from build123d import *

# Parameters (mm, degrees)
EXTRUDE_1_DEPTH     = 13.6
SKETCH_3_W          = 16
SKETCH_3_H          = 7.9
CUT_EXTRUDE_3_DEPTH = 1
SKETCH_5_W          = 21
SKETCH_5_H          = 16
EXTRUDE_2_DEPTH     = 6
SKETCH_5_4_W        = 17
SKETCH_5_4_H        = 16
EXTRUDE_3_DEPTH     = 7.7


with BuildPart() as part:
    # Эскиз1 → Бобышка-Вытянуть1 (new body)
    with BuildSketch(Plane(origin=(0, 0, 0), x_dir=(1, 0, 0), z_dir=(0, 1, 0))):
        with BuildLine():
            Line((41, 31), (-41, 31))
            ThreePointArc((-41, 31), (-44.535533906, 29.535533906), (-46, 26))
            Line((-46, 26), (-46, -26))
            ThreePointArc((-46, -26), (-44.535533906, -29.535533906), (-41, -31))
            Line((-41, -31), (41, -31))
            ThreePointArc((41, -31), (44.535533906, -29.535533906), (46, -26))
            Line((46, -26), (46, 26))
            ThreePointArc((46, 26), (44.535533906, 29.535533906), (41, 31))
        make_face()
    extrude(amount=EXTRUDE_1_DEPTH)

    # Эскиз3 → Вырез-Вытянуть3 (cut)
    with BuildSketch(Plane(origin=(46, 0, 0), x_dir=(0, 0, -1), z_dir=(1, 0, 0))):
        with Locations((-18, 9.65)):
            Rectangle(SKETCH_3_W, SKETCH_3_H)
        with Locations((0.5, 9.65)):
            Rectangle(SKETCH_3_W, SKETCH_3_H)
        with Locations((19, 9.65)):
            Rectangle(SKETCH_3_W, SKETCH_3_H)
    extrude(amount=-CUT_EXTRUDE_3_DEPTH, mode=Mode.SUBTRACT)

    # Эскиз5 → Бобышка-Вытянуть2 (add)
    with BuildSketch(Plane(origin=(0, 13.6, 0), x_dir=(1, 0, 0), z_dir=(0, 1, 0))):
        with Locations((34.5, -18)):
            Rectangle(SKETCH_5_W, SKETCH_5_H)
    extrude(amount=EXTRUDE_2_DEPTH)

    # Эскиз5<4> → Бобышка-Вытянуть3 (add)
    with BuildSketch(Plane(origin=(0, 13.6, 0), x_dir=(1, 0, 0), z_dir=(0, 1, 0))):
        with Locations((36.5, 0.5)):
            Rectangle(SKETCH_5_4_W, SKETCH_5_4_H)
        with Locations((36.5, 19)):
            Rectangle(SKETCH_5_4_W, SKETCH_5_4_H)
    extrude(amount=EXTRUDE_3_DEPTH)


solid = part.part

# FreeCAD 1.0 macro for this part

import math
import FreeCAD as App
import Part
import Sketcher

V = App.Vector


def add_polygon(sketch, points):
    """Adds a closed chain of lines whose ends are joined by coincident constraints."""
    first, n = sketch.GeometryCount, len(points)
    for a, b in zip(points, points[1:] + points[:1]):
        sketch.addGeometry(Part.LineSegment(App.Vector(*a, 0), App.Vector(*b, 0)), False)
    for i in range(n):
        sketch.addConstraint(Sketcher.Constraint("Coincident", first + i, 2, first + (i + 1) % n, 1))

doc = App.newDocument("Part")
body = doc.addObject("PartDesign::Body", "Body")

sketch1 = doc.addObject("Sketcher::SketchObject", "Sketch")
body.addObject(sketch1)
sketch1.AttachmentSupport = (doc.XZ_Plane, [""])
sketch1.MapMode = "FlatFace"
sketch1.addGeometry(Part.LineSegment(V(41, -31, 0), V(-41, -31, 0)), False)
sketch1.addGeometry(Part.ArcOfCircle(Part.Circle(V(-41, -26, 0), V(0, 0, 1), 5), math.radians(180), math.radians(270)), False)
sketch1.addGeometry(Part.LineSegment(V(-46, -26, 0), V(-46, 26, 0)), False)
sketch1.addGeometry(Part.ArcOfCircle(Part.Circle(V(-41, 26, 0), V(0, 0, 1), 5), math.radians(90), math.radians(180)), False)
sketch1.addGeometry(Part.LineSegment(V(-41, 31, 0), V(41, 31, 0)), False)
sketch1.addGeometry(Part.ArcOfCircle(Part.Circle(V(41, 26, 0), V(0, 0, 1), 5), math.radians(0), math.radians(90)), False)
sketch1.addGeometry(Part.LineSegment(V(46, 26, 0), V(46, -26, 0)), False)
sketch1.addGeometry(Part.ArcOfCircle(Part.Circle(V(41, -26, 0), V(0, 0, 1), 5), math.radians(-90), math.radians(0)), False)
sketch1.addConstraint(Sketcher.Constraint("Tangent", 0, 2, 1, 2))
sketch1.addConstraint(Sketcher.Constraint("Tangent", 1, 1, 2, 1))
sketch1.addConstraint(Sketcher.Constraint("Tangent", 2, 2, 3, 2))
sketch1.addConstraint(Sketcher.Constraint("Tangent", 3, 1, 4, 1))
sketch1.addConstraint(Sketcher.Constraint("Tangent", 4, 2, 5, 2))
sketch1.addConstraint(Sketcher.Constraint("Tangent", 5, 1, 6, 1))
sketch1.addConstraint(Sketcher.Constraint("Tangent", 6, 2, 7, 2))
sketch1.addConstraint(Sketcher.Constraint("Tangent", 7, 1, 0, 1))
sketch1.addConstraint(Sketcher.Constraint("Horizontal", 0))
sketch1.addConstraint(Sketcher.Constraint("Vertical", 2))
sketch1.addConstraint(Sketcher.Constraint("Horizontal", 4))
sketch1.addConstraint(Sketcher.Constraint("Vertical", 6))
sketch1.addConstraint(Sketcher.Constraint("Equal", 1, 3))
sketch1.addConstraint(Sketcher.Constraint("Equal", 3, 5))
sketch1.addConstraint(Sketcher.Constraint("Equal", 5, 7))
sketch1.addConstraint(Sketcher.Constraint("Symmetric", 1, 3, 5, 3, -1, 1))
sketch1.addConstraint(Sketcher.Constraint("Radius", 1, 5.0))
sketch1.addConstraint(Sketcher.Constraint("DistanceX", 0, 2, 0, 1, 82.0))
sketch1.addConstraint(Sketcher.Constraint("DistanceY", 2, 1, 2, 2, 52.0))
pad1 = doc.addObject("PartDesign::Pad", "Pad")
body.addObject(pad1)
pad1.Profile = sketch1
pad1.Length = 13.6
pad1.Reversed = True

sketch2 = doc.addObject("Sketcher::SketchObject", "Sketch001")
body.addObject(sketch2)
sketch2.AttachmentSupport = (doc.YZ_Plane, [""])
sketch2.MapMode = "FlatFace"
sketch2.AttachmentOffset = App.Placement(V(0, 0, 46), App.Rotation())
add_polygon(sketch2, [(14, 26), (6, 26), (6, 10), (14, 10)])
add_polygon(sketch2, [(14, 8), (6, 8), (6, -8), (14, -8)])
add_polygon(sketch2, [(14, -11), (6, -11), (6, -27), (14, -27)])
sketch2.addConstraint(Sketcher.Constraint("Horizontal", 0))
sketch2.addConstraint(Sketcher.Constraint("Vertical", 1))
sketch2.addConstraint(Sketcher.Constraint("Horizontal", 2))
sketch2.addConstraint(Sketcher.Constraint("Vertical", 3))
sketch2.addConstraint(Sketcher.Constraint("Horizontal", 4))
sketch2.addConstraint(Sketcher.Constraint("Vertical", 5))
sketch2.addConstraint(Sketcher.Constraint("Horizontal", 6))
sketch2.addConstraint(Sketcher.Constraint("Vertical", 7))
sketch2.addConstraint(Sketcher.Constraint("Horizontal", 8))
sketch2.addConstraint(Sketcher.Constraint("Vertical", 9))
sketch2.addConstraint(Sketcher.Constraint("Horizontal", 10))
sketch2.addConstraint(Sketcher.Constraint("Vertical", 11))
sketch2.addConstraint(Sketcher.Constraint("Vertical", 1, 2, 4, 2))
sketch2.addConstraint(Sketcher.Constraint("Vertical", 3, 2, 6, 2))
sketch2.addConstraint(Sketcher.Constraint("Vertical", 5, 2, 8, 2))
sketch2.addConstraint(Sketcher.Constraint("Vertical", 7, 2, 10, 2))
sketch2.addConstraint(Sketcher.Constraint("Equal", 3, 5))
sketch2.addConstraint(Sketcher.Constraint("Equal", 7, 9))
sketch2.addConstraint(Sketcher.Constraint("DistanceY", 1, 2, 1, 1, 16.0))
sketch2.addConstraint(Sketcher.Constraint("DistanceX", 0, 2, 0, 1, 7.9))
sketch2.addConstraint(Sketcher.Constraint("DistanceY", -1, 1, 0, 2, 26.0))
sketch2.addConstraint(Sketcher.Constraint("DistanceY", 8, 2, -1, 1, 11.0))
sketch2.addConstraint(Sketcher.Constraint("DistanceX", -1, 1, 0, 2, 5.7))
sketch2.addConstraint(Sketcher.Constraint("DistanceY", -1, 1, 4, 2, 7.5))
pocket1 = doc.addObject("PartDesign::Pocket", "Pocket")
body.addObject(pocket1)
pocket1.Profile = sketch2
pocket1.Length = 1

sketch3 = doc.addObject("Sketcher::SketchObject", "Sketch002")
body.addObject(sketch3)
sketch3.AttachmentSupport = (doc.XZ_Plane, [""])
sketch3.MapMode = "FlatFace"
sketch3.AttachmentOffset = App.Placement(V(0, 0, -13.6), App.Rotation())
add_polygon(sketch3, [(24, 10), (24, 26), (45, 26), (45, 10)])
sketch3.addConstraint(Sketcher.Constraint("Vertical", 0))
sketch3.addConstraint(Sketcher.Constraint("Horizontal", 1))
sketch3.addConstraint(Sketcher.Constraint("Vertical", 2))
sketch3.addConstraint(Sketcher.Constraint("Horizontal", 3))
sketch3.addConstraint(Sketcher.Constraint("DistanceX", 1, 1, 1, 2, 21.0))
sketch3.addConstraint(Sketcher.Constraint("DistanceY", 0, 1, 0, 2, 16.0))
sketch3.addConstraint(Sketcher.Constraint("DistanceX", -1, 1, 0, 2, 24.0))
sketch3.addConstraint(Sketcher.Constraint("DistanceY", -1, 1, 0, 2, 26.0))
pad2 = doc.addObject("PartDesign::Pad", "Pad001")
body.addObject(pad2)
pad2.Profile = sketch3
pad2.Length = 6
pad2.Reversed = True

sketch4 = doc.addObject("Sketcher::SketchObject", "Sketch003")
body.addObject(sketch4)
sketch4.AttachmentSupport = (doc.XZ_Plane, [""])
sketch4.MapMode = "FlatFace"
sketch4.AttachmentOffset = App.Placement(V(0, 0, -13.6), App.Rotation())
add_polygon(sketch4, [(28, -8), (28, 8), (45, 8), (45, -8)])
add_polygon(sketch4, [(28, -27), (28, -11), (45, -11), (45, -27)])
sketch4.addConstraint(Sketcher.Constraint("Vertical", 0))
sketch4.addConstraint(Sketcher.Constraint("Horizontal", 1))
sketch4.addConstraint(Sketcher.Constraint("Vertical", 2))
sketch4.addConstraint(Sketcher.Constraint("Horizontal", 3))
sketch4.addConstraint(Sketcher.Constraint("Vertical", 4))
sketch4.addConstraint(Sketcher.Constraint("Horizontal", 5))
sketch4.addConstraint(Sketcher.Constraint("Vertical", 6))
sketch4.addConstraint(Sketcher.Constraint("Horizontal", 7))
sketch4.addConstraint(Sketcher.Constraint("Vertical", 3, 2, 4, 2))
sketch4.addConstraint(Sketcher.Constraint("Vertical", 2, 2, 5, 2))
sketch4.addConstraint(Sketcher.Constraint("Equal", 2, 4))
sketch4.addConstraint(Sketcher.Constraint("DistanceX", 1, 1, 1, 2, 17.0))
sketch4.addConstraint(Sketcher.Constraint("DistanceY", 0, 1, 0, 2, 16.0))
sketch4.addConstraint(Sketcher.Constraint("DistanceX", -1, 1, 0, 2, 28.0))
sketch4.addConstraint(Sketcher.Constraint("DistanceY", 4, 2, -1, 1, 11.0))
sketch4.addConstraint(Sketcher.Constraint("DistanceY", -1, 1, 0, 2, 7.5))
pad3 = doc.addObject("PartDesign::Pad", "Pad002")
body.addObject(pad3)
pad3.Profile = sketch4
pad3.Length = 7.7
pad3.Reversed = True

doc.recompute()
